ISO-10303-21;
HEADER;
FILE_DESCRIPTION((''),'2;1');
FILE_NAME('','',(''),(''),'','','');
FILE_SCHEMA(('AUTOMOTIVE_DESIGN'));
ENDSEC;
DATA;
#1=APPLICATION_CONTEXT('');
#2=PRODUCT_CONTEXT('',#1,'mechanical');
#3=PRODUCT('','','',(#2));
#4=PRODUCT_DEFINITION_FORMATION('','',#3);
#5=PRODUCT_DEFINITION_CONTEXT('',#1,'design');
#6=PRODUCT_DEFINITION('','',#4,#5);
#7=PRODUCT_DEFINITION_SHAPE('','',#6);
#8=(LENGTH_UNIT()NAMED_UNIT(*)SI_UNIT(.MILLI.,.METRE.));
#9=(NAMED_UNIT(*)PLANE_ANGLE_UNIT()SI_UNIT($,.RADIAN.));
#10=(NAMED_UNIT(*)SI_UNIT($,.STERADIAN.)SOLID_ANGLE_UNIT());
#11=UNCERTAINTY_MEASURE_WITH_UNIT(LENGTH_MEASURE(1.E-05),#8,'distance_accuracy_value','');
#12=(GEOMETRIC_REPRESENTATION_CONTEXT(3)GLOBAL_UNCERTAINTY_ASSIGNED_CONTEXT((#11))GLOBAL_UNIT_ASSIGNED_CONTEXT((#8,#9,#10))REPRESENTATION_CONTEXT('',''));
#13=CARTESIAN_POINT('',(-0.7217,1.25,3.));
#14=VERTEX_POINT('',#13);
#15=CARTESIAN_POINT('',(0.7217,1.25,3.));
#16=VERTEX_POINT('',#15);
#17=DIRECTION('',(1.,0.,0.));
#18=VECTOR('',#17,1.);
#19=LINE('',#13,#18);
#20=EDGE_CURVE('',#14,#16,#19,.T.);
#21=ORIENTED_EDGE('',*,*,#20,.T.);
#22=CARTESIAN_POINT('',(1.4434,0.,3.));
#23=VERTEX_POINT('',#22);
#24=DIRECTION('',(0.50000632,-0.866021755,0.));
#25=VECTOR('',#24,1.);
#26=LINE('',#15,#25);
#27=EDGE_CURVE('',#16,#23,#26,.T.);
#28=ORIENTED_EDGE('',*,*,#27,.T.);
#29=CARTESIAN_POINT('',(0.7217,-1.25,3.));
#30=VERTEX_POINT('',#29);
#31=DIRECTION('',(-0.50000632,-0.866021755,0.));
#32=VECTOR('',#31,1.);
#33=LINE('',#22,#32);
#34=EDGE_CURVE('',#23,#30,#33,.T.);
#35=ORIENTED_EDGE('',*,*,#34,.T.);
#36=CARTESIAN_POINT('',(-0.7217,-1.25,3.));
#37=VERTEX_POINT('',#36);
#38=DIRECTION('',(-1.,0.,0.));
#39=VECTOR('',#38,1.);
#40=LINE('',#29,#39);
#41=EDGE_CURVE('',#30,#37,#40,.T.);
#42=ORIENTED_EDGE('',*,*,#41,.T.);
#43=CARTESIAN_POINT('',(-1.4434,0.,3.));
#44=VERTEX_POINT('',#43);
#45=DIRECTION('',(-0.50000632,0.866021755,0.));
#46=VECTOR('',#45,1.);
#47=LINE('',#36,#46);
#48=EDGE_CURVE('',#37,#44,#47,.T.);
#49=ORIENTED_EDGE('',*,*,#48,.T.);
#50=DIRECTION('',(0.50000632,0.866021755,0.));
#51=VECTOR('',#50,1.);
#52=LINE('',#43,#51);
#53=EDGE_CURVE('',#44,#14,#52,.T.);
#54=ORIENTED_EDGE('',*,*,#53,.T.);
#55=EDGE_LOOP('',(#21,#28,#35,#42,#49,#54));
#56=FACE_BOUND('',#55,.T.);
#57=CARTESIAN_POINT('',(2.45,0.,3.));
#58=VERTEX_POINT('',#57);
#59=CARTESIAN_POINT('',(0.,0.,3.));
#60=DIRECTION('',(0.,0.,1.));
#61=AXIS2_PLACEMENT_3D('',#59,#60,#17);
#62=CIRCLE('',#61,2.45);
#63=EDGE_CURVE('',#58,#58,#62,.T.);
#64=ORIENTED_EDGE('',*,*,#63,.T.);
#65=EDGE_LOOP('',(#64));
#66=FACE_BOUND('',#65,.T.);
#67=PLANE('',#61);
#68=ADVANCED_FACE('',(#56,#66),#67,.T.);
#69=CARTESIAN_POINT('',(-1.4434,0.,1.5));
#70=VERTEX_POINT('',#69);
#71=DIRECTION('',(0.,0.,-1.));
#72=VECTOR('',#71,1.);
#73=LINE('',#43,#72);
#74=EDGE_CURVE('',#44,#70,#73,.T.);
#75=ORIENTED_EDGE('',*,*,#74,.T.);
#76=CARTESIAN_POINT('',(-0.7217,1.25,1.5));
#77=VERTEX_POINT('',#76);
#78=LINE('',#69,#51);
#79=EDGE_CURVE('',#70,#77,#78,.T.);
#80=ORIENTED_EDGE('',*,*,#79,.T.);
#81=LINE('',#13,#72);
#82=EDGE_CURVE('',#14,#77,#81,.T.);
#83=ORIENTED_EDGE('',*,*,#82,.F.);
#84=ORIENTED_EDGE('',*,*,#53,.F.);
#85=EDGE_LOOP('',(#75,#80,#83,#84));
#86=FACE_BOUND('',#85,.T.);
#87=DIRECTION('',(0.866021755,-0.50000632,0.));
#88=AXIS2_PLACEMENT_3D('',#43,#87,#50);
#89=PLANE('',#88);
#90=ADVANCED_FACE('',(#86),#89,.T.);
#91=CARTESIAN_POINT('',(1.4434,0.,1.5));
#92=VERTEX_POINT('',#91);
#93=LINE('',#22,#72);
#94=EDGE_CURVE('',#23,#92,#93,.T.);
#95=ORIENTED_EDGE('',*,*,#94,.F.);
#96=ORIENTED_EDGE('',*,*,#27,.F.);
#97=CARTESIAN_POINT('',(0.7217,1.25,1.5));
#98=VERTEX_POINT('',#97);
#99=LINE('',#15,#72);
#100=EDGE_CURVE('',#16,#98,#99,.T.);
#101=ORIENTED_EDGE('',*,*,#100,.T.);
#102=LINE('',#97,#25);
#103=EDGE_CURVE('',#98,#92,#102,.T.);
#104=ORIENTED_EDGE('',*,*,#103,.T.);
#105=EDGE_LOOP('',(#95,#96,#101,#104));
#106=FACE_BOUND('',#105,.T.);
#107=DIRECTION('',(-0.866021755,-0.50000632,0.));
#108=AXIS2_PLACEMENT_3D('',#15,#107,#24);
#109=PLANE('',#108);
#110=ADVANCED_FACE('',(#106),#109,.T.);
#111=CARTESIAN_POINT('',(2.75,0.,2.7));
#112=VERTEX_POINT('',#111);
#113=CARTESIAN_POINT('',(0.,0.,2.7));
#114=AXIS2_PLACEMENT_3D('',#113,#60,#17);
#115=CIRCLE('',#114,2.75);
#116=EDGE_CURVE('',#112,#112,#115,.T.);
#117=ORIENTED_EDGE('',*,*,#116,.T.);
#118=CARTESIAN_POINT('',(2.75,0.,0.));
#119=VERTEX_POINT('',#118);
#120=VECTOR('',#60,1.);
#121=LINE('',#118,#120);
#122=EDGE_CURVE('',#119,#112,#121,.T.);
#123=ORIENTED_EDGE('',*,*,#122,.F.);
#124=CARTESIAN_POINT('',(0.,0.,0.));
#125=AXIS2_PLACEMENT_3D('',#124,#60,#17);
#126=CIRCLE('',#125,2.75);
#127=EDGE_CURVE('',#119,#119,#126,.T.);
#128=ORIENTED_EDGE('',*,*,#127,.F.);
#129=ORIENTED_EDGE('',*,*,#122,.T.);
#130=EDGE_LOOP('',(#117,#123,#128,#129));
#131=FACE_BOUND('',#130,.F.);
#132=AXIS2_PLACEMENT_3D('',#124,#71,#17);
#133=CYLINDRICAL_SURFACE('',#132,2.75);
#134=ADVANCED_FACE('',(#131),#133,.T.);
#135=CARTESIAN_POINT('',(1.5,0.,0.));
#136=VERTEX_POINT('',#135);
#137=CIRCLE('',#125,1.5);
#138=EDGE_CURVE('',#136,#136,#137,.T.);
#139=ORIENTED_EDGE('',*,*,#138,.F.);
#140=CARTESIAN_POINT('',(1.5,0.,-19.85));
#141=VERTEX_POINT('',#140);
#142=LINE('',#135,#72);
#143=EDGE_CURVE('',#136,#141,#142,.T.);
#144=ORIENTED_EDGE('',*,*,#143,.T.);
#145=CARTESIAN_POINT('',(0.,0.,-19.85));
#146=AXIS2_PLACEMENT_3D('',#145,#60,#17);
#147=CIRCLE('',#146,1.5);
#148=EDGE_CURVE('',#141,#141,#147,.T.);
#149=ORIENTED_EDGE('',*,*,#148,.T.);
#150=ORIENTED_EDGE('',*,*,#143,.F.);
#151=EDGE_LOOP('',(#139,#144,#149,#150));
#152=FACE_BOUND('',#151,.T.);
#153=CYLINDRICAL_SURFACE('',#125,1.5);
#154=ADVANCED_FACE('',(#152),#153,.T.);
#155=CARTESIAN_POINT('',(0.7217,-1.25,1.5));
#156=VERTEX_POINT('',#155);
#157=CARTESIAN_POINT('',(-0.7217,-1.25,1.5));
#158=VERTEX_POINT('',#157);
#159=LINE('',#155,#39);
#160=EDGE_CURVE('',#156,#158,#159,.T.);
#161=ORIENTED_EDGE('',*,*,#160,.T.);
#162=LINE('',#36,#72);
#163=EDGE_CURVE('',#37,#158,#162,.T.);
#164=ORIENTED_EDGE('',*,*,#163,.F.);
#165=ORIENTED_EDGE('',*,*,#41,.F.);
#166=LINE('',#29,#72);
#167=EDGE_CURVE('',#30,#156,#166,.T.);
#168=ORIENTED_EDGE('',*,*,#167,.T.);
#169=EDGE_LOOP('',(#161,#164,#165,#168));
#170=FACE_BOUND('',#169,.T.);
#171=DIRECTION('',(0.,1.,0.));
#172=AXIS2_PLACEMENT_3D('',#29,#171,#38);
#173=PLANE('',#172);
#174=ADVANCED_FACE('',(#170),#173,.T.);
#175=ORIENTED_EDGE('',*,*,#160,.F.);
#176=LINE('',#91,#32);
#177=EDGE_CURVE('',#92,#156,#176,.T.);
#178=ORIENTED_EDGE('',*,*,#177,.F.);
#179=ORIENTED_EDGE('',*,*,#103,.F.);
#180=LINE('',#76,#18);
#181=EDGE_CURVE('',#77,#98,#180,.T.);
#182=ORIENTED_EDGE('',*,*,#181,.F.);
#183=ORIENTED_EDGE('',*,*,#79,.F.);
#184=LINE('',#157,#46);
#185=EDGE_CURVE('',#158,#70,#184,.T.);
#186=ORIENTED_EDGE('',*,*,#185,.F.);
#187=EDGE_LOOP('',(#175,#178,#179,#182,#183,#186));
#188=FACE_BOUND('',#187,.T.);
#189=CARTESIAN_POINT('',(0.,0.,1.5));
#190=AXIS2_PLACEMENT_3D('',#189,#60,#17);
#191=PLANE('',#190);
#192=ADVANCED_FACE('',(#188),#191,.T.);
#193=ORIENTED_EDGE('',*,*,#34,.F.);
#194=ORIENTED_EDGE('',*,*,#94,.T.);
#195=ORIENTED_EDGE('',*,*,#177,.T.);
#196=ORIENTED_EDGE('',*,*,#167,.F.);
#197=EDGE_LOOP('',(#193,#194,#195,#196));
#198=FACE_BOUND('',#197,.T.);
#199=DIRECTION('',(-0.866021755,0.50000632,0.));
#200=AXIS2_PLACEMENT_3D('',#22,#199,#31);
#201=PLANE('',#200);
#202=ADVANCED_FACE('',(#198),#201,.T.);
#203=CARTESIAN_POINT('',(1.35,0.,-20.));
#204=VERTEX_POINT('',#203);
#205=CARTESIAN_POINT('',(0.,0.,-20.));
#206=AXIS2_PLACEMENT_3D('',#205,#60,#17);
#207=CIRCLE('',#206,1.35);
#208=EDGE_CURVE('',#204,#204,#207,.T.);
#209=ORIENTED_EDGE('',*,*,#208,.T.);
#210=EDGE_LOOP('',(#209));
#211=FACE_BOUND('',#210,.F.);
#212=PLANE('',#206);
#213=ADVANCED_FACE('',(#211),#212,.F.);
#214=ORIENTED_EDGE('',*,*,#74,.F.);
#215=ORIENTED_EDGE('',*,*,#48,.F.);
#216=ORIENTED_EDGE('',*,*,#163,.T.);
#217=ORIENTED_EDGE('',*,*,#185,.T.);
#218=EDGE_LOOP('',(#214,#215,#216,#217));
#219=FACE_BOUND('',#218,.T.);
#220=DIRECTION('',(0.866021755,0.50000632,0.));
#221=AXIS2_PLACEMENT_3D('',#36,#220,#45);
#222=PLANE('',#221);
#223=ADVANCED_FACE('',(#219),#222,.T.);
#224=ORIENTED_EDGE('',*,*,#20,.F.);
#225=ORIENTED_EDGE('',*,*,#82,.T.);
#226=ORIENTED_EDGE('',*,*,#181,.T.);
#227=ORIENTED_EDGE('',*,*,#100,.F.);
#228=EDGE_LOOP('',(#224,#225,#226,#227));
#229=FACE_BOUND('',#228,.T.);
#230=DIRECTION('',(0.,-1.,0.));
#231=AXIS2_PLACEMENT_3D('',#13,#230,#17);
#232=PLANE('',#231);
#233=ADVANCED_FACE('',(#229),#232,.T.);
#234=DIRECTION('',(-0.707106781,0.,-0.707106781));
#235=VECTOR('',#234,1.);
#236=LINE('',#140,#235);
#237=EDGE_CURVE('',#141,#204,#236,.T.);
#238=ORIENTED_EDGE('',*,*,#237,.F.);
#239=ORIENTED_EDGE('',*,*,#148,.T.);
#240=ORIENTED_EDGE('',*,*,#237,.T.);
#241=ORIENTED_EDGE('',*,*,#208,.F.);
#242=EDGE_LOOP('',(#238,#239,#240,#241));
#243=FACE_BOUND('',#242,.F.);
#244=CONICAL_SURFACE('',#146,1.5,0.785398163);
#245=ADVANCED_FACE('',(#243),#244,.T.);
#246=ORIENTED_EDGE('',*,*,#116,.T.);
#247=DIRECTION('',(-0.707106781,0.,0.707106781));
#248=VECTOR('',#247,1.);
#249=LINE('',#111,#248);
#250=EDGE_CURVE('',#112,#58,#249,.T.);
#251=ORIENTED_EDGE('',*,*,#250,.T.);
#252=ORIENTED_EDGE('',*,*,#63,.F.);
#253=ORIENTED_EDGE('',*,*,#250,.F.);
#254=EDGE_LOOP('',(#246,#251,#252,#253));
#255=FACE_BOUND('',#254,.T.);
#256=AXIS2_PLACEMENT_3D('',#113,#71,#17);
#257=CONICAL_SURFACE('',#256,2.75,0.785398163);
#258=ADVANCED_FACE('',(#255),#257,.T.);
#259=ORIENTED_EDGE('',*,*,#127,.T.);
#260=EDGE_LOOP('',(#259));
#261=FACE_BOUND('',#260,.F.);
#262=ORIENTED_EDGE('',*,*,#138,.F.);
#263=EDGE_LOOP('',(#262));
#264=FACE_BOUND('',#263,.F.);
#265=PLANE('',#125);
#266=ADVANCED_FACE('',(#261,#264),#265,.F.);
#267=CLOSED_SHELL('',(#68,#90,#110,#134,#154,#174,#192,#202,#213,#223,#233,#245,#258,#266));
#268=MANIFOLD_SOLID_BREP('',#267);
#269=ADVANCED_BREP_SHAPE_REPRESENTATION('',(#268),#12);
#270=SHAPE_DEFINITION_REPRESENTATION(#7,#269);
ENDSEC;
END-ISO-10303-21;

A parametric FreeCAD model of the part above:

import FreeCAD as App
import Part
import Sketcher

V = App.Vector
Q = App.Units.Quantity


def edges_at(feature, points):
    """Names of the edges that pass closest to the given points."""
    edges = feature.Shape.Edges
    near = lambda p: min(range(len(edges)), key=lambda i: edges[i].distToShape(Part.Vertex(*p))[0])
    return sorted({f"Edge{near(p) + 1}" for p in points})


def add_polygon(sketch, points):
    """Adds a closed chain of lines whose ends are joined by coincident constraints."""
    first, n = sketch.GeometryCount, len(points)
    for a, b in zip(points, points[1:] + points[:1]):
        sketch.addGeometry(Part.LineSegment(App.Vector(*a, 0), App.Vector(*b, 0)), False)
    for i in range(n):
        sketch.addConstraint(Sketcher.Constraint("Coincident", first + i, 2, first + (i + 1) % n, 1))

doc = App.newDocument("Part")
params = doc.addObject("Spreadsheet::Sheet", "Params")
for row, (alias, value) in enumerate([
    ("sketch1_diameter", "3 mm"),
    ("pad1_length", "20 mm"),
    ("sketch2_diameter", "5.5 mm"),
    ("pad2_length", "3 mm"),
    ("pocket1_length", "1.5 mm"),
    ("chamfer_size", "0.3 mm"),
    ("chamfer2_size", "0.15 mm"),
], start=1):
    params.set(f"A{row}", alias)
    params.set(f"B{row}", "=" + value)
    params.setAlias(f"B{row}", alias)

body = doc.addObject("PartDesign::Body", "Body")

# Sketch on XY plane
sketch1 = doc.addObject("Sketcher::SketchObject", "Sketch")
body.addObject(sketch1)
sketch1.AttachmentSupport = (doc.XY_Plane, [""])
sketch1.MapMode = "FlatFace"
sketch1.addGeometry(Part.Circle(V(0, 0, 0), V(0, 0, 1), 1.5), False)
sketch1.addConstraint(Sketcher.Constraint("Coincident", 0, 3, -1, 1))
sketch1.addConstraint(Sketcher.Constraint("Diameter", 0, Q("3 mm")))
sketch1.setExpression("Constraints[1]", "Params.sketch1_diameter")
pad1 = doc.addObject("PartDesign::Pad", "Pad")
body.addObject(pad1)
pad1.Profile = sketch1
pad1.setExpression("Length", "Params.pad1_length")
pad1.Reversed = True

# Sketch on XY plane
sketch2 = doc.addObject("Sketcher::SketchObject", "Sketch001")
body.addObject(sketch2)
sketch2.AttachmentSupport = (doc.XY_Plane, [""])
sketch2.MapMode = "FlatFace"
sketch2.addGeometry(Part.Circle(V(0, 0, 0), V(0, 0, 1), 2.8), False)
sketch2.addConstraint(Sketcher.Constraint("Coincident", 0, 3, -1, 1))
sketch2.addConstraint(Sketcher.Constraint("Diameter", 0, Q("5.5 mm")))
sketch2.setExpression("Constraints[1]", "Params.sketch2_diameter")
pad2 = doc.addObject("PartDesign::Pad", "Pad001")
body.addObject(pad2)
pad2.Profile = sketch2
pad2.setExpression("Length", "Params.pad2_length")

# Sketch on XY plane
sketch3 = doc.addObject("Sketcher::SketchObject", "Sketch002")
body.addObject(sketch3)
sketch3.AttachmentSupport = (doc.XY_Plane, [""])
sketch3.MapMode = "FlatFace"
sketch3.AttachmentOffset = App.Placement(V(0, 0, 3), App.Rotation())
add_polygon(sketch3, [(0.7, -1.2), (1.4, 0), (0.7, 1.2), (-0.7, 1.2), (-1.4, 0), (-0.7, -1.2)])  # lines 0-5
sketch3.addConstraint(Sketcher.Constraint("Horizontal", 2))
sketch3.addConstraint(Sketcher.Constraint("Horizontal", 5))
sketch3.addConstraint(Sketcher.Constraint("Symmetric", 0, 2, 3, 2, -1, 1))
sketch3.addConstraint(Sketcher.Constraint("Symmetric", 1, 2, 4, 2, -1, 1))
sketch3.addConstraint(Sketcher.Constraint("PointOnObject", 0, 2, -1))
sketch3.addConstraint(Sketcher.Constraint("Parallel", 0, 3))
sketch3.addConstraint(Sketcher.Constraint("Vertical", 2, 2, 4, 2))
sketch3.addConstraint(Sketcher.Constraint("DistanceY", 4, 2, 2, 2, Q("2.5 mm")))
sketch3.addConstraint(Sketcher.Constraint("Angle", 0, Q("59.9996 deg")))
sketch3.addConstraint(Sketcher.Constraint("DistanceX", 2, 2, 2, 1, Q("1.4434 mm")))
pocket1 = doc.addObject("PartDesign::Pocket", "Pocket")
body.addObject(pocket1)
pocket1.Profile = sketch3
pocket1.setExpression("Length", "Params.pocket1_length")
doc.recompute()

chamfer = doc.addObject("PartDesign::Chamfer", "Chamfer")
body.addObject(chamfer)
chamfer.Base = (pocket1, edges_at(pocket1, [(-2.75, 0, 3)]))
chamfer.setExpression("Size", "Params.chamfer_size")
doc.recompute()

chamfer2 = doc.addObject("PartDesign::Chamfer", "Chamfer001")
body.addObject(chamfer2)
chamfer2.Base = (chamfer, edges_at(chamfer, [(-1.5, 0, -20)]))
chamfer2.setExpression("Size", "Params.chamfer2_size")

doc.recompute()
